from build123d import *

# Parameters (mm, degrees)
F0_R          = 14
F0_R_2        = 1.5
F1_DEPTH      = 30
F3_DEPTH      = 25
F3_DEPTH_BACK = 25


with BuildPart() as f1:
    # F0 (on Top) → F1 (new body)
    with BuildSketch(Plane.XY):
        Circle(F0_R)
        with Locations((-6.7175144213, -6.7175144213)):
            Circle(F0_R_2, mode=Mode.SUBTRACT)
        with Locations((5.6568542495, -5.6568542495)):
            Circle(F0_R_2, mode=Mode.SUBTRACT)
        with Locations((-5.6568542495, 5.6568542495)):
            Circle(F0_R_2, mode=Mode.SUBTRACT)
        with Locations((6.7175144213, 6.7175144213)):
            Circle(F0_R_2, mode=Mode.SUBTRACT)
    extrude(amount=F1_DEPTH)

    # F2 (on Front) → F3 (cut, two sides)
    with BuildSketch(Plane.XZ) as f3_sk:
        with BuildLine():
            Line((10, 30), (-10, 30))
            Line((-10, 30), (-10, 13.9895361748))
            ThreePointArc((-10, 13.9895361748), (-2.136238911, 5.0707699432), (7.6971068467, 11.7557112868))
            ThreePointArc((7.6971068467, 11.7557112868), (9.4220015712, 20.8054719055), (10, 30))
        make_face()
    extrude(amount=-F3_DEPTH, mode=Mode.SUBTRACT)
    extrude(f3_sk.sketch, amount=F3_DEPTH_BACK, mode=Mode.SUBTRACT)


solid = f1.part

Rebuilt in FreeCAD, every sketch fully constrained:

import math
import FreeCAD as App
import Part
import Sketcher
from FreeCAD import Vector

doc = App.newDocument("Part")
body = doc.addObject("PartDesign::Body", "Body")

# Sketch on XY plane
sketch1 = body.newObject("Sketcher::SketchObject", "Sketch")
sketch1.AttachmentSupport = (doc.getObject("XY_Plane"), [""])
sketch1.MapMode = "FlatFace"
sketch1.addGeometry(Part.Circle(Vector(0, 0, 0), Vector(0, 0, 1), 14), False)
sketch1.addGeometry(Part.Circle(Vector(-6.7, -6.7, 0), Vector(0, 0, 1), 1.5), False)
sketch1.addGeometry(Part.Circle(Vector(5.7, -5.7, 0), Vector(0, 0, 1), 1.5), False)
sketch1.addGeometry(Part.Circle(Vector(-5.7, 5.7, 0), Vector(0, 0, 1), 1.5), False)
sketch1.addGeometry(Part.Circle(Vector(6.7, 6.7, 0), Vector(0, 0, 1), 1.5), False)
sketch1.addConstraint(Sketcher.Constraint("Coincident", 0, 3, -1, 1))
sketch1.addConstraint(Sketcher.Constraint("Equal", 1, 2))
sketch1.addConstraint(Sketcher.Constraint("Equal", 2, 3))
sketch1.addConstraint(Sketcher.Constraint("Equal", 3, 4))
sketch1.addConstraint(Sketcher.Constraint("Symmetric", 2, 3, 3, 3, -1, 1))
sketch1.addConstraint(Sketcher.Constraint("Symmetric", 1, 3, 4, 3, -1, 1))
sketch1.addConstraint(Sketcher.Constraint("Diameter", 0, 28.0))
sketch1.addConstraint(Sketcher.Constraint("Diameter", 1, 3.0))
sketch1.addConstraint(Sketcher.Constraint("DistanceX", 1, 3, 2, 3, 12.374369))
sketch1.addConstraint(Sketcher.Constraint("DistanceY", 1, 3, 2, 3, 1.06066))
sketch1.addConstraint(Sketcher.Constraint("DistanceX", 1, 3, 3, 3, 1.06066))
sketch1.addConstraint(Sketcher.Constraint("DistanceY", 1, 3, 3, 3, 12.374369))
pad1 = body.newObject("PartDesign::Pad", "Pad")
pad1.Profile = sketch1
pad1.Length = 30

# Sketch on XZ plane
sketch2 = body.newObject("Sketcher::SketchObject", "Sketch001")
sketch2.AttachmentSupport = (doc.getObject("XZ_Plane"), [""])
sketch2.MapMode = "FlatFace"
sketch2.addGeometry(Part.LineSegment(Vector(10, 30, 0), Vector(-10, 30, 0)), False)
sketch2.addGeometry(Part.LineSegment(Vector(-10, 30, 0), Vector(-10, 14, 0)), False)
sketch2.addGeometry(Part.ArcOfCircle(Part.Circle(Vector(-1, 14, 0), Vector(0, 0, 1), 9), math.radians(180), math.radians(346)), False)
sketch2.addGeometry(Part.ArcOfCircle(Part.Circle(Vector(-63, 30, 0), Vector(0, 0, 1), 73), math.radians(-14.39), math.radians(0)), False)
sketch2.addConstraint(Sketcher.Constraint("Coincident", 0, 2, 1, 1))
sketch2.addConstraint(Sketcher.Constraint("Tangent", 1, 2, 2, 1))
sketch2.addConstraint(Sketcher.Constraint("Tangent", 2, 2, 3, 1))
sketch2.addConstraint(Sketcher.Constraint("Coincident", 3, 2, 0, 1))
sketch2.addConstraint(Sketcher.Constraint("Horizontal", 0))
sketch2.addConstraint(Sketcher.Constraint("Vertical", 1))
sketch2.addConstraint(Sketcher.Constraint("Horizontal", 3, 3, 0, 2))
sketch2.addConstraint(Sketcher.Constraint("DistanceX", 0, 2, 0, 1, 20.0))
sketch2.addConstraint(Sketcher.Constraint("DistanceY", -1, 1, 3, 3, 30.0))
sketch2.addConstraint(Sketcher.Constraint("DistanceX", 0, 2, -1, 1, 10.0))
sketch2.addConstraint(Sketcher.Constraint("Radius", 3, 73.420121))
sketch2.addConstraint(Sketcher.Constraint("Radius", 2, 8.989536))
pocket1 = body.newObject("PartDesign::Pocket", "Pocket")
pocket1.Profile = sketch2
pocket1.Type = "ThroughAll"
pocket1.Midplane = True

doc.recompute()
